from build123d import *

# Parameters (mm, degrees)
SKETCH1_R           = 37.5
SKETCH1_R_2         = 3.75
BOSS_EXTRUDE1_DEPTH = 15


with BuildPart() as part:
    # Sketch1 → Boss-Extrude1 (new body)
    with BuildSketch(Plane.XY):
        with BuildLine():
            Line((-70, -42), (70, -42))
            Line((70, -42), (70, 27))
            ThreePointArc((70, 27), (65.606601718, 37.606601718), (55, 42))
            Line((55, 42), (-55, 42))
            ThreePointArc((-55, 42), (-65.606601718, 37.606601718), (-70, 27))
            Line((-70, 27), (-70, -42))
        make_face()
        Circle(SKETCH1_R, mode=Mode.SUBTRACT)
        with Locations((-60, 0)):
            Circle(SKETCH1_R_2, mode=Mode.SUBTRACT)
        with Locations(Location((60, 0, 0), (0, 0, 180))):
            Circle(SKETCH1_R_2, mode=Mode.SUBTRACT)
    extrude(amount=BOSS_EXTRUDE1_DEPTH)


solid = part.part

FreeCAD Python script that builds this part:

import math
import FreeCAD as App
import Part
import Sketcher
from FreeCAD import Vector
Q = App.Units.Quantity

doc = App.newDocument("Part")
body = doc.addObject("PartDesign::Body", "Body")

# Sketch on XY plane
sketch1 = doc.addObject("Sketcher::SketchObject", "Sketch")
body.addObject(sketch1)
sketch1.AttachmentSupport = (doc.XY_Plane, [""])
sketch1.MapMode = "FlatFace"
sketch1.addGeometry([
    Part.LineSegment(Vector(-70, -42, 0), Vector(70, -42, 0)),  # 0
    Part.LineSegment(Vector(70, -42, 0), Vector(70, 27, 0)),  # 1
    Part.ArcOfCircle(Part.Circle(Vector(55, 27, 0), Vector(0, 0, 1), 15), math.radians(0), math.radians(90)),  # 2
    Part.LineSegment(Vector(55, 42, 0), Vector(-55, 42, 0)),  # 3
    Part.ArcOfCircle(Part.Circle(Vector(-55, 27, 0), Vector(0, 0, 1), 15), math.radians(90), math.radians(180)),  # 4
    Part.LineSegment(Vector(-70, 27, 0), Vector(-70, -42, 0)),  # 5
    Part.Circle(Vector(-60, 0, 0), Vector(0, 0, 1), 3.75),  # 6
    Part.Circle(Vector(0, 0, 0), Vector(0, 0, 1), 37.5),  # 7
    Part.Circle(Vector(60, 0, 0), Vector(0, 0, 1), 3.75),  # 8
], False)
sketch1.addConstraint([
    Sketcher.Constraint("Coincident", 0, 2, 1, 1),
    Sketcher.Constraint("Tangent", 1, 2, 2, 1),
    Sketcher.Constraint("Tangent", 2, 2, 3, 1),
    Sketcher.Constraint("Tangent", 3, 2, 4, 1),
    Sketcher.Constraint("Tangent", 4, 2, 5, 1),
    Sketcher.Constraint("Coincident", 5, 2, 0, 1),
    Sketcher.Constraint("Horizontal", 0),
    Sketcher.Constraint("Vertical", 1),
    Sketcher.Constraint("Horizontal", 3),
    Sketcher.Constraint("Vertical", 5),
    Sketcher.Constraint("Coincident", 7, 3, -1, 1),
    Sketcher.Constraint("Equal", 2, 4),
    Sketcher.Constraint("Equal", 6, 8),
    Sketcher.Constraint("Symmetric", 6, 3, 8, 3, -1, 1),
    Sketcher.Constraint("PointOnObject", 6, 3, -1),
    Sketcher.Constraint("Diameter", 7, Q("75 mm")),
    Sketcher.Constraint("Radius", 2, Q("15 mm")),
    Sketcher.Constraint("Diameter", 6, Q("7.5 mm")),
    Sketcher.Constraint("DistanceX", 0, 1, 0, 2, Q("140 mm")),
    Sketcher.Constraint("DistanceY", 1, 1, 1, 2, Q("69 mm")),
    Sketcher.Constraint("DistanceX", -1, 1, 2, 3, Q("55 mm")),
    Sketcher.Constraint("DistanceY", -1, 1, 2, 3, Q("27 mm")),
    Sketcher.Constraint("DistanceX", 6, 3, -1, 1, Q("60 mm")),
])
pad1 = doc.addObject("PartDesign::Pad", "Pad")
body.addObject(pad1)
pad1.Profile = sketch1
pad1.Length = 15

doc.recompute()
